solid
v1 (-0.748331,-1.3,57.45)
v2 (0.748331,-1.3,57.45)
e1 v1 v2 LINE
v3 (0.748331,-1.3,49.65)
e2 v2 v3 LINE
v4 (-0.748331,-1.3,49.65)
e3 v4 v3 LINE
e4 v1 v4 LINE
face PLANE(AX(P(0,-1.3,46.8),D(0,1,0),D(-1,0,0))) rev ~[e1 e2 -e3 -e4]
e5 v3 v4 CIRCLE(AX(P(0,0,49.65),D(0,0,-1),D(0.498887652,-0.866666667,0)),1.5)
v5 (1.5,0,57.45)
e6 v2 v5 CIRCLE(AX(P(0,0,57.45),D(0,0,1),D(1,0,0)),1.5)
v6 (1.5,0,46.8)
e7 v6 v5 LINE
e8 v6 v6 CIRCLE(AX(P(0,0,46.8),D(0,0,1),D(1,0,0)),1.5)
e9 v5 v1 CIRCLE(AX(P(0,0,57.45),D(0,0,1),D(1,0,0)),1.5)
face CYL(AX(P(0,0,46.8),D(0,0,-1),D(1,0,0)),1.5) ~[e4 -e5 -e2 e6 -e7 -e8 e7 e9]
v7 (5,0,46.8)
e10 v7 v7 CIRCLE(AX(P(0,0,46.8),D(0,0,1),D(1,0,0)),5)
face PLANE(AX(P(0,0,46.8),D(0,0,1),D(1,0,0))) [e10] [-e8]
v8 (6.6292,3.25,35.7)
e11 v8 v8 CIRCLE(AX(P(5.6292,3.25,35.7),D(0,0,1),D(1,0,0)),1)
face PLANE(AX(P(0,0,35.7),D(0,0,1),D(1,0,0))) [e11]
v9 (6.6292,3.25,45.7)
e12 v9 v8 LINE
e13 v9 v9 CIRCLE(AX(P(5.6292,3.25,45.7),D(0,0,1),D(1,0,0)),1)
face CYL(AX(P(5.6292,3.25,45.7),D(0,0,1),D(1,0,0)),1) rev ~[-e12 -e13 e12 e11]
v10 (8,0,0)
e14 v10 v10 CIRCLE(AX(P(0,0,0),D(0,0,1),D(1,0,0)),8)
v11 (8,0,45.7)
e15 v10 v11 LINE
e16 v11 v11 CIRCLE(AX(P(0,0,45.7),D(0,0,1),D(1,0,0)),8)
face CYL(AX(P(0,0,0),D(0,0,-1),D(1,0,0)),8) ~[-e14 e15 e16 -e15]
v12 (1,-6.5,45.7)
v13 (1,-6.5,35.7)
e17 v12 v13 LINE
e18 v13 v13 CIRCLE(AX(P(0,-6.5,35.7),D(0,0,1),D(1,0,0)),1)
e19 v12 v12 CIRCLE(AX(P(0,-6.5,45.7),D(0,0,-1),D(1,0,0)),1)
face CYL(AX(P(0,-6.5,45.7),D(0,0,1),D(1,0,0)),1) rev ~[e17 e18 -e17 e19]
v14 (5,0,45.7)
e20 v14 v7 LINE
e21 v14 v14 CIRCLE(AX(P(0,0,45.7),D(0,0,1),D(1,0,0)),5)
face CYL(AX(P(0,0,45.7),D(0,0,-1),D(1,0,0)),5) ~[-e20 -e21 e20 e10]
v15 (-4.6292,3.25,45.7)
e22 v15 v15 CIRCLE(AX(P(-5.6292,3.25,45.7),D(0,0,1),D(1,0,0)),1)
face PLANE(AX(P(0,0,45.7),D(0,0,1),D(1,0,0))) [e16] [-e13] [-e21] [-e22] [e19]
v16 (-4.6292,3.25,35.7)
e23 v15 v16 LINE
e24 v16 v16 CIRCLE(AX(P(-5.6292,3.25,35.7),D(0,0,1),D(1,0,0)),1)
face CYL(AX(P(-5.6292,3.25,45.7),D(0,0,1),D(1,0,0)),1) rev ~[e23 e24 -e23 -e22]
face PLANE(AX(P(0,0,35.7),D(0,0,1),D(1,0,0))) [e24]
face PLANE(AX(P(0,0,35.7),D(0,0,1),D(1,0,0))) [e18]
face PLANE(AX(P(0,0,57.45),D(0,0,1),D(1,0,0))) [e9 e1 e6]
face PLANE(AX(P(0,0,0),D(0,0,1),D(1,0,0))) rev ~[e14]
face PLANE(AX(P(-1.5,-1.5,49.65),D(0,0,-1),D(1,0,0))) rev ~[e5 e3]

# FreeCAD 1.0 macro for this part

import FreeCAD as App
import Part
import Sketcher
Q = App.Units.Quantity


def add_polygon(sketch, points):
    """Adds a closed chain of lines whose ends are joined by coincident constraints."""
    first, n = sketch.GeometryCount, len(points)
    for a, b in zip(points, points[1:] + points[:1]):
        sketch.addGeometry(Part.LineSegment(App.Vector(*a, 0), App.Vector(*b, 0)), False)
    for i in range(n):
        sketch.addConstraint(Sketcher.Constraint("Coincident", first + i, 2, first + (i + 1) % n, 1))

doc = App.newDocument("Part")
body = doc.addObject("PartDesign::Body", "Body")

sketch1 = body.newObject("Sketcher::SketchObject", "Sketch")
sketch1.AttachmentSupport = (doc.getObject("XY_Plane"), [""])
sketch1.MapMode = "FlatFace"
sketch1.addGeometry(Part.Circle(App.Vector(0, 0, 0), App.Vector(0, 0, 1), 8), False)
sketch1.addConstraint([
    Sketcher.Constraint("Coincident", 0, 3, -1, 1),
    Sketcher.Constraint("Diameter", 0, Q("16 mm")),
])
pad1 = body.newObject("PartDesign::Pad", "Pad")
pad1.Profile = sketch1
pad1.Length = 45.7

sketch2 = body.newObject("Sketcher::SketchObject", "Sketch001")
sketch2.AttachmentSupport = (doc.getObject("XY_Plane"), [""])
sketch2.MapMode = "FlatFace"
sketch2.AttachmentOffset = App.Placement(App.Vector(0, 0, 45.7), App.Rotation())
sketch2.addGeometry([
    Part.Circle(App.Vector(0, -6.5, 0), App.Vector(0, 0, 1), 1),
    Part.Circle(App.Vector(5.6292, 3.25, 0), App.Vector(0, 0, 1), 1),
    Part.Circle(App.Vector(-5.6292, 3.25, 0), App.Vector(0, 0, 1), 1),
], False)
sketch2.addConstraint([
    Sketcher.Constraint("Equal", 0, 1),
    Sketcher.Constraint("Equal", 1, 2),
    Sketcher.Constraint("Symmetric", 1, 3, 2, 3, -2),
    Sketcher.Constraint("PointOnObject", 0, 3, -2),
    Sketcher.Constraint("Diameter", 0, Q("2 mm")),
    Sketcher.Constraint("DistanceY", 0, 3, -1, 1, Q("6.5 mm")),
    Sketcher.Constraint("DistanceY", -1, 1, 1, 3, Q("3.25 mm")),
    Sketcher.Constraint("DistanceX", -1, 1, 1, 3, Q("5.6292 mm")),
])
pocket1 = body.newObject("PartDesign::Pocket", "Pocket")
pocket1.Profile = sketch2
pocket1.Length = 10

sketch3 = body.newObject("Sketcher::SketchObject", "Sketch002")
sketch3.AttachmentSupport = (doc.getObject("XY_Plane"), [""])
sketch3.MapMode = "FlatFace"
sketch3.AttachmentOffset = App.Placement(App.Vector(0, 0, 45.7), App.Rotation())
sketch3.addGeometry(Part.Circle(App.Vector(0, 0, 0), App.Vector(0, 0, 1), 5), False)
sketch3.addConstraint([
    Sketcher.Constraint("Coincident", 0, 3, -1, 1),
    Sketcher.Constraint("Diameter", 0, Q("10 mm")),
])
pad2 = body.newObject("PartDesign::Pad", "Pad001")
pad2.Profile = sketch3
pad2.Length = 1.1

sketch4 = body.newObject("Sketcher::SketchObject", "Sketch003")
sketch4.AttachmentSupport = (doc.getObject("XY_Plane"), [""])
sketch4.MapMode = "FlatFace"
sketch4.AttachmentOffset = App.Placement(App.Vector(0, 0, 46.8), App.Rotation())
sketch4.addGeometry(Part.Circle(App.Vector(0, 0, 0), App.Vector(0, 0, 1), 1.5), False)
sketch4.addConstraint([
    Sketcher.Constraint("Coincident", 0, 3, -1, 1),
    Sketcher.Constraint("Diameter", 0, Q("3 mm")),
])
pad3 = body.newObject("PartDesign::Pad", "Pad002")
pad3.Profile = sketch4
pad3.Length = 10.65

sketch5 = body.newObject("Sketcher::SketchObject", "Sketch004")
sketch5.AttachmentSupport = (doc.getObject("XZ_Plane"), [""])
sketch5.MapMode = "FlatFace"
sketch5.AttachmentOffset = App.Placement(App.Vector(0, 0, 1.5), App.Rotation())
add_polygon(sketch5, [(-1.5, 49.65), (-1.5, 57.45), (1.5, 57.45), (1.5, 49.65)])
sketch5.addConstraint([
    Sketcher.Constraint("Vertical", 0),
    Sketcher.Constraint("Horizontal", 1),
    Sketcher.Constraint("Vertical", 2),
    Sketcher.Constraint("Horizontal", 3),
    Sketcher.Constraint("DistanceY", 0, 1, 0, 2, Q("7.8 mm")),
    Sketcher.Constraint("DistanceX", 0, 2, -1, 1, Q("1.5 mm")),
    Sketcher.Constraint("DistanceX", -1, 1, 1, 2, Q("1.5 mm")),
    Sketcher.Constraint("DistanceY", -1, 1, 0, 2, Q("57.45 mm")),
])
pocket2 = body.newObject("PartDesign::Pocket", "Pocket001")
pocket2.Profile = sketch5
pocket2.Length = 0.2

doc.recompute()
